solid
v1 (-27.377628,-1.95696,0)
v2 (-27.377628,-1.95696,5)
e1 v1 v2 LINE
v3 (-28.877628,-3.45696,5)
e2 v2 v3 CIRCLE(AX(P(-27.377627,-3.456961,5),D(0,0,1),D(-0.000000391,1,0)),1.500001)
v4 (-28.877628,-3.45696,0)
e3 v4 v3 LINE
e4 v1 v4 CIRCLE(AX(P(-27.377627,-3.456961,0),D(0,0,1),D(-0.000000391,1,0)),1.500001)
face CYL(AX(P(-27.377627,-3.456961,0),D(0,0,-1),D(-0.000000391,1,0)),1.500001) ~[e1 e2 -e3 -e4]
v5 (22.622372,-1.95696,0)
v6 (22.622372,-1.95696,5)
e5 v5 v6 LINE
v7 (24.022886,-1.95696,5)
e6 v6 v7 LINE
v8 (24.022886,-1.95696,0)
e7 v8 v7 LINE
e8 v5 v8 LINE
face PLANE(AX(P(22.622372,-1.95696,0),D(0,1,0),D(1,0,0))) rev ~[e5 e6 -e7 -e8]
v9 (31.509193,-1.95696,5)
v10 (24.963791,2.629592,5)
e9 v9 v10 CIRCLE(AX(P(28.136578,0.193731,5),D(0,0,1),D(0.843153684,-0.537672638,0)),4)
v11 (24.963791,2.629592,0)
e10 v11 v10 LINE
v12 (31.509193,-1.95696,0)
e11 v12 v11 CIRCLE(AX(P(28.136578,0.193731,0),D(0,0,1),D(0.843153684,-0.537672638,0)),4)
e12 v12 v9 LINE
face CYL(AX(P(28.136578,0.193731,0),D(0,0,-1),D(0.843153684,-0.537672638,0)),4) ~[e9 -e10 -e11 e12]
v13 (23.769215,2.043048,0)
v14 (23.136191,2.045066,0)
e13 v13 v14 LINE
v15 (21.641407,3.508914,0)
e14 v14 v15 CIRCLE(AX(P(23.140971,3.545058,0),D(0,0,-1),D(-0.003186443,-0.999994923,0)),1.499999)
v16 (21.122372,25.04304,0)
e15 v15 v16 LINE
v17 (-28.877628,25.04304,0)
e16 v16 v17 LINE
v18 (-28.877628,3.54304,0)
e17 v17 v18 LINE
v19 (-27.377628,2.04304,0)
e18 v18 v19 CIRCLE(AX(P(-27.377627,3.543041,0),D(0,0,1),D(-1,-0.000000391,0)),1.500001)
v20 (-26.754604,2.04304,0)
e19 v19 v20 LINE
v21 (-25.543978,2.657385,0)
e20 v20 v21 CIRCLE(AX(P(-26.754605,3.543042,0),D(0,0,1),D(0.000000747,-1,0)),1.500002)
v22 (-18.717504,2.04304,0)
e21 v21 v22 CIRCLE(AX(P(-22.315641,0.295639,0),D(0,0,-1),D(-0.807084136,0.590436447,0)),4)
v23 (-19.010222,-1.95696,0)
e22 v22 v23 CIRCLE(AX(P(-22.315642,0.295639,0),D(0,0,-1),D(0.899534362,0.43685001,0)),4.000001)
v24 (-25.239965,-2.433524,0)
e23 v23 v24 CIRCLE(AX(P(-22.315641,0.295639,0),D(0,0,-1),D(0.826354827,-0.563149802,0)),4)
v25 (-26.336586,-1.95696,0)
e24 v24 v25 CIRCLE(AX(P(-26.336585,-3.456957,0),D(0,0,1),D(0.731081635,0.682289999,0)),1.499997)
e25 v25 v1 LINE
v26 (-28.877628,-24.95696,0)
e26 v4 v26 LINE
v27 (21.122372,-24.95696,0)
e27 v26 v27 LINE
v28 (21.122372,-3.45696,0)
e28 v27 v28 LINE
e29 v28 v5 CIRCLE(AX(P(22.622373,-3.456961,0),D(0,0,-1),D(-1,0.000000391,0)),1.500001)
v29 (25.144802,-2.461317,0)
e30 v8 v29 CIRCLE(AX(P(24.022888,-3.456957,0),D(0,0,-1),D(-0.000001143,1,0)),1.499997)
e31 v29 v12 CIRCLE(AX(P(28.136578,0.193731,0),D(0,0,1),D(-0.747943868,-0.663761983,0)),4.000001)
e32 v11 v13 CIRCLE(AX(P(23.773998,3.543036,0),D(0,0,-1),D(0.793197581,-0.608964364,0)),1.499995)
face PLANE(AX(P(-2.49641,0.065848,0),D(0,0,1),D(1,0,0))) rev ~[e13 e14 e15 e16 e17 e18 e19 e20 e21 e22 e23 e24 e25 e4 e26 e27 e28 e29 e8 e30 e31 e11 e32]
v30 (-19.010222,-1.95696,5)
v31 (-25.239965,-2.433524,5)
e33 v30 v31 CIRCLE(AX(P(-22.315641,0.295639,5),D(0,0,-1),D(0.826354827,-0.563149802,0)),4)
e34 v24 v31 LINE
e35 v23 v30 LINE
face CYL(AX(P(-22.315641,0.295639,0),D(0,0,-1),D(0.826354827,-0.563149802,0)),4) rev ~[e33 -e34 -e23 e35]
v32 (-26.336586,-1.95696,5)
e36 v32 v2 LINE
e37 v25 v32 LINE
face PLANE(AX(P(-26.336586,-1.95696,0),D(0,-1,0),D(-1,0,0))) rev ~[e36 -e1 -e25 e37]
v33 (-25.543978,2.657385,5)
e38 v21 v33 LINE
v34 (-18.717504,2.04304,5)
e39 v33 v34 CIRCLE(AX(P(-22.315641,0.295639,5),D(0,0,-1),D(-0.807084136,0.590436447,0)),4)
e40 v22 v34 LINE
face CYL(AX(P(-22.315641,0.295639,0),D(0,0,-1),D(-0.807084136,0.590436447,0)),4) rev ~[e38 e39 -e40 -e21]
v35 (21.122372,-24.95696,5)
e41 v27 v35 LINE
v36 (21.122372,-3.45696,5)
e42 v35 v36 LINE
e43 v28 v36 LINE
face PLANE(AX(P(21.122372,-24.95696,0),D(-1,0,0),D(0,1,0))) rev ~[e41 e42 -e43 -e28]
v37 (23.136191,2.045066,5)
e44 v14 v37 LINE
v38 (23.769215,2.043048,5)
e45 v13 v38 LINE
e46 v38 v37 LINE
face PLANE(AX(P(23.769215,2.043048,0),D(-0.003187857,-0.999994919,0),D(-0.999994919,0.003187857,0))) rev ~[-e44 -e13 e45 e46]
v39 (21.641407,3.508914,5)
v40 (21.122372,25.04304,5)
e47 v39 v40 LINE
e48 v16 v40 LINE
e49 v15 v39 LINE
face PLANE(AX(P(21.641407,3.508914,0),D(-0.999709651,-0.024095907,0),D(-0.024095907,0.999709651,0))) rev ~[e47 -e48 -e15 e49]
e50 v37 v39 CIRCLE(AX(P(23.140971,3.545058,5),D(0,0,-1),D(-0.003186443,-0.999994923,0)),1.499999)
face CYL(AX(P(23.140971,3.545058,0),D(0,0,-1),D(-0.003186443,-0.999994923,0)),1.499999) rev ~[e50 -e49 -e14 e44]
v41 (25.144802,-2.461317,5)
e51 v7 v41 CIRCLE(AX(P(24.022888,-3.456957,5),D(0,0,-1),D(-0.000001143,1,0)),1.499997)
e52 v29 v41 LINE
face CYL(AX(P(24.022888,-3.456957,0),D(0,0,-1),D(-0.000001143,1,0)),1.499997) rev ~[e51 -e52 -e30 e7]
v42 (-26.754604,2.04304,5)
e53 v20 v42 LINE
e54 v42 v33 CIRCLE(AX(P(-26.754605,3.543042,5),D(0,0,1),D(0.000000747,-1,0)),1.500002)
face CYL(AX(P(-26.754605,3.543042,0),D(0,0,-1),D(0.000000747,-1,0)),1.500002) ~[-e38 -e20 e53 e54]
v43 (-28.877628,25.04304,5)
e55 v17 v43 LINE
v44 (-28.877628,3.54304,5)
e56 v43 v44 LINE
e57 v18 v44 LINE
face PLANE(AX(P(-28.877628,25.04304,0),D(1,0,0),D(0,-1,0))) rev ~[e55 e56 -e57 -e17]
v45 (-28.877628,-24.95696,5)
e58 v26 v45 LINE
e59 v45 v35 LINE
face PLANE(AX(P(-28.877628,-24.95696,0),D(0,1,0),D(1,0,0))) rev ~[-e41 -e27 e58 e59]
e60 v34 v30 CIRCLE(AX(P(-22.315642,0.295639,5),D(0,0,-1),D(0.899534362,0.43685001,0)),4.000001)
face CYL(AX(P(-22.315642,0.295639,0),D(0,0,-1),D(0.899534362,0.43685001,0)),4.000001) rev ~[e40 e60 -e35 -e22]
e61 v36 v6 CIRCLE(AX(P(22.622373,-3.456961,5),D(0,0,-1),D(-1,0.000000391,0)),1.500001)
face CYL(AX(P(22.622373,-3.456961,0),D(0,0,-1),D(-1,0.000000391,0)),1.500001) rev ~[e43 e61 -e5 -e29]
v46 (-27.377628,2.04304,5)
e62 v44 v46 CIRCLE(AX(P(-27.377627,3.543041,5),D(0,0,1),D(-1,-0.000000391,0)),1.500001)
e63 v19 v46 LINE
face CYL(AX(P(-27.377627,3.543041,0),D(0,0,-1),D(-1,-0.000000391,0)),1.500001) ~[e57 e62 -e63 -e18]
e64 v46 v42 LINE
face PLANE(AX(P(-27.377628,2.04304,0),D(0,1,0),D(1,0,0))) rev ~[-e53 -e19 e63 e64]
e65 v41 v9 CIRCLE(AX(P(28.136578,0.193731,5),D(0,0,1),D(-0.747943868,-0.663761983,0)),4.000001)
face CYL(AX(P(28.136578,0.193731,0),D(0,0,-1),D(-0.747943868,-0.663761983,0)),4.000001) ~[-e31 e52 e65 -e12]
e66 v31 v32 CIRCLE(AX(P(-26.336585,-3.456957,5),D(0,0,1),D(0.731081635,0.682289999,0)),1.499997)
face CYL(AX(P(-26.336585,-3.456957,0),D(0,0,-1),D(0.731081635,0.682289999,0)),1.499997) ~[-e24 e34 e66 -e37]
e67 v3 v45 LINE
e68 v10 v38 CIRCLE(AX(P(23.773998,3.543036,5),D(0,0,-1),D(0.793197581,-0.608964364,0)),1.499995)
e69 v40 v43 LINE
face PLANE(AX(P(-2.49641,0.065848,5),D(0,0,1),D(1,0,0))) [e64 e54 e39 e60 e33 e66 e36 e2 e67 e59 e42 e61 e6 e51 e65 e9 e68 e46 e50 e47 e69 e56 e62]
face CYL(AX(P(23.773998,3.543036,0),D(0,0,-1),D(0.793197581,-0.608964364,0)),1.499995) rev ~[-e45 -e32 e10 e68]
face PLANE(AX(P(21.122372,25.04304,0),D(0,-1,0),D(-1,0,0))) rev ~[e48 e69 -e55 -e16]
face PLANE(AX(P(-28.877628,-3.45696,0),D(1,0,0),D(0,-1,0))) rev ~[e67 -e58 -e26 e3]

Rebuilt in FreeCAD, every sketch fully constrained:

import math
import FreeCAD as App
import Part
import Sketcher

doc = App.newDocument("Part")
params = doc.addObject("Spreadsheet::Sheet", "Params")
for row, (alias, value) in enumerate([
    ("sketch1_radius", "4 mm"),
    ("sketch1_radius2", "1.500001 mm"),
    ("sketch1_width", "50 mm"),
    ("sketch1_height", "21.5 mm"),
    ("pad1_length", "5 mm"),
], start=1):
    params.set(f"A{row}", alias)
    params.set(f"B{row}", "=" + value)
    params.setAlias(f"B{row}", alias)

body = doc.addObject("PartDesign::Body", "Body")

# Sketch on XY plane
sketch1 = body.newObject("Sketcher::SketchObject", "Sketch")
sketch1.AttachmentSupport = (doc.getObject("XY_Plane"), [""])
sketch1.MapMode = "FlatFace"
sketch1.addGeometry([
    Part.LineSegment(App.Vector(21.6, 3.5, 0), App.Vector(21.1, 25, 0)),  # 0
    Part.LineSegment(App.Vector(21.1, 25, 0), App.Vector(-28.9, 25, 0)),  # 1
    Part.LineSegment(App.Vector(-28.9, 25, 0), App.Vector(-28.9, 3.5, 0)),  # 2
    Part.ArcOfCircle(Part.Circle(App.Vector(-27.4, 3.5, 0), App.Vector(0, 0, 1), 1.5), math.radians(-180), math.radians(-90)),  # 3
    Part.LineSegment(App.Vector(-27.4, 2, 0), App.Vector(-26.8, 2, 0)),  # 4
    Part.ArcOfCircle(Part.Circle(App.Vector(-26.8, 3.5, 0), App.Vector(0, 0, 1), 1.5), math.radians(-90), math.radians(-36)),  # 5
    Part.ArcOfCircle(Part.Circle(App.Vector(-22.3, 0.3, 0), App.Vector(0, 0, 1), 4), math.radians(26), math.radians(144)),  # 6
    Part.ArcOfCircle(Part.Circle(App.Vector(-22.3, 0.3, 0), App.Vector(0, 0, 1), 4), math.radians(-34), math.radians(26)),  # 7
    Part.ArcOfCircle(Part.Circle(App.Vector(-22.3, 0.3, 0), App.Vector(0, 0, 1), 4), math.radians(-137), math.radians(-34)),  # 8
    Part.ArcOfCircle(Part.Circle(App.Vector(-26.3, -3.5, 0), App.Vector(0, 0, 1), 1.5), math.radians(43), math.radians(90)),  # 9
    Part.LineSegment(App.Vector(-26.3, -2, 0), App.Vector(-27.4, -2, 0)),  # 10
    Part.ArcOfCircle(Part.Circle(App.Vector(-27.4, -3.5, 0), App.Vector(0, 0, 1), 1.5), math.radians(90), math.radians(180)),  # 11
    Part.LineSegment(App.Vector(-28.9, -3.5, 0), App.Vector(-28.9, -25, 0)),  # 12
    Part.LineSegment(App.Vector(-28.9, -25, 0), App.Vector(21.1, -25, 0)),  # 13
    Part.LineSegment(App.Vector(21.1, -25, 0), App.Vector(21.1, -3.5, 0)),  # 14
    Part.ArcOfCircle(Part.Circle(App.Vector(22.6, -3.5, 0), App.Vector(0, 0, 1), 1.5), math.radians(90), math.radians(180)),  # 15
    Part.LineSegment(App.Vector(22.6, -2, 0), App.Vector(24, -2, 0)),  # 16
    Part.ArcOfCircle(Part.Circle(App.Vector(24, -3.5, 0), App.Vector(0, 0, 1), 1.5), math.radians(42), math.radians(90)),  # 17
    Part.ArcOfCircle(Part.Circle(App.Vector(28.1, 0.2, 0), App.Vector(0, 0, 1), 4), math.radians(-138), math.radians(-33)),  # 18
    Part.ArcOfCircle(Part.Circle(App.Vector(28.1, 0.2, 0), App.Vector(0, 0, 1), 4), math.radians(-33), math.radians(142)),  # 19
    Part.ArcOfCircle(Part.Circle(App.Vector(23.8, 3.5, 0), App.Vector(0, 0, 1), 1.5), math.radians(-90), math.radians(-38)),  # 20
    Part.LineSegment(App.Vector(23.8, 2, 0), App.Vector(23.1, 2, 0)),  # 21
    Part.ArcOfCircle(Part.Circle(App.Vector(23.1, 3.5, 0), App.Vector(0, 0, 1), 1.5), math.radians(-179), math.radians(-90)),  # 22
], False)
sketch1.addConstraint([
    Sketcher.Constraint("Coincident", 0, 2, 1, 1),
    Sketcher.Constraint("Coincident", 1, 2, 2, 1),
    Sketcher.Constraint("Tangent", 2, 2, 3, 1),
    Sketcher.Constraint("Tangent", 3, 2, 4, 1),
    Sketcher.Constraint("Tangent", 4, 2, 5, 1),
    Sketcher.Constraint("Tangent", 5, 2, 6, 2),
    Sketcher.Constraint("Tangent", 6, 1, 7, 2),
    Sketcher.Constraint("Tangent", 7, 1, 8, 2),
    Sketcher.Constraint("Tangent", 8, 1, 9, 1),
    Sketcher.Constraint("Tangent", 9, 2, 10, 1),
    Sketcher.Constraint("Tangent", 10, 2, 11, 1),
    Sketcher.Constraint("Tangent", 11, 2, 12, 1),
    Sketcher.Constraint("Coincident", 12, 2, 13, 1),
    Sketcher.Constraint("Coincident", 13, 2, 14, 1),
    Sketcher.Constraint("Tangent", 14, 2, 15, 2),
    Sketcher.Constraint("Tangent", 15, 1, 16, 1),
    Sketcher.Constraint("Tangent", 16, 2, 17, 2),
    Sketcher.Constraint("Tangent", 17, 1, 18, 1),
    Sketcher.Constraint("Tangent", 18, 2, 19, 1),
    Sketcher.Constraint("Tangent", 19, 2, 20, 2),
    Sketcher.Constraint("Tangent", 20, 1, 21, 1),
    Sketcher.Constraint("Tangent", 21, 2, 22, 2),
    Sketcher.Constraint("Tangent", 22, 1, 0, 1),
    Sketcher.Constraint("Horizontal", 1),
    Sketcher.Constraint("Vertical", 2),
    Sketcher.Constraint("Horizontal", 4),
    Sketcher.Constraint("Horizontal", 10),
    Sketcher.Constraint("Vertical", 12),
    Sketcher.Constraint("Horizontal", 13),
    Sketcher.Constraint("Vertical", 14),
    Sketcher.Constraint("Horizontal", 16),
    Sketcher.Constraint("Coincident", 8, 3, 6, 3),
    Sketcher.Constraint("Equal", 3, 5),
    Sketcher.Constraint("Equal", 5, 11),
    Sketcher.Constraint("Equal", 11, 15),
    Sketcher.Constraint("Equal", 9, 17),
    Sketcher.Constraint("Equal", 8, 18),
    Sketcher.Constraint("Equal", 18, 19),
    Sketcher.Constraint("Equal", 17, 20),
    Sketcher.Constraint("Equal", 15, 22),
    Sketcher.Constraint("Horizontal", 11, 3, 15, 3),
    Sketcher.Constraint("Horizontal", 4, 2, 6, 1),
    Sketcher.Constraint("Horizontal", 7, 1, 9, 2),
    Sketcher.Constraint("Horizontal", 16, 2, 18, 2),
    Sketcher.Constraint("Vertical", 3, 3, 11, 3),
    Sketcher.Constraint("Vertical", 0, 2, 13, 2),
    Sketcher.Constraint("Equal", 2, 12),
    Sketcher.Constraint("Radius", 6, 4.0),
    Sketcher.Constraint("Radius", 3, 1.500001),
    Sketcher.Constraint("DistanceX", 1, 2, 1, 1, 50.0),
    Sketcher.Constraint("DistanceY", 2, 2, 2, 1, 21.5),
    Sketcher.Constraint("DistanceY", 9, 3, 5, 3, 6.999999),
    Sketcher.Constraint("DistanceY", 11, 3, 3, 3, 7.000001),
    Sketcher.Constraint("DistanceX", -1, 1, 20, 3, 23.773998),
    Sketcher.Constraint("DistanceX", -1, 1, 17, 1, 25.144802),
    Sketcher.Constraint("DistanceY", 6, 3, 3, 3, 3.247402),
    Sketcher.Constraint("DistanceX", 15, 3, 22, 3, 0.518598),
    Sketcher.Constraint("DistanceX", 21, 2, 19, 2, 1.8276),
    Sketcher.Constraint("Distance", 0, 21.54038),
    Sketcher.Constraint("DistanceX", 4, 1, 4, 2, 0.623024),
    Sketcher.Constraint("DistanceX", 16, 1, 16, 2, 1.400514),
    Sketcher.Constraint("DistanceY", -1, 1, 3, 3, 3.543041),
])
sketch1.setExpression("Constraints[47]", "Params.sketch1_radius")
sketch1.setExpression("Constraints[48]", "Params.sketch1_radius2")
sketch1.setExpression("Constraints[49]", "Params.sketch1_width")
sketch1.setExpression("Constraints[50]", "Params.sketch1_height")
pad1 = body.newObject("PartDesign::Pad", "Pad")
pad1.Profile = sketch1
pad1.setExpression("Length", "Params.pad1_length")

doc.recompute()
